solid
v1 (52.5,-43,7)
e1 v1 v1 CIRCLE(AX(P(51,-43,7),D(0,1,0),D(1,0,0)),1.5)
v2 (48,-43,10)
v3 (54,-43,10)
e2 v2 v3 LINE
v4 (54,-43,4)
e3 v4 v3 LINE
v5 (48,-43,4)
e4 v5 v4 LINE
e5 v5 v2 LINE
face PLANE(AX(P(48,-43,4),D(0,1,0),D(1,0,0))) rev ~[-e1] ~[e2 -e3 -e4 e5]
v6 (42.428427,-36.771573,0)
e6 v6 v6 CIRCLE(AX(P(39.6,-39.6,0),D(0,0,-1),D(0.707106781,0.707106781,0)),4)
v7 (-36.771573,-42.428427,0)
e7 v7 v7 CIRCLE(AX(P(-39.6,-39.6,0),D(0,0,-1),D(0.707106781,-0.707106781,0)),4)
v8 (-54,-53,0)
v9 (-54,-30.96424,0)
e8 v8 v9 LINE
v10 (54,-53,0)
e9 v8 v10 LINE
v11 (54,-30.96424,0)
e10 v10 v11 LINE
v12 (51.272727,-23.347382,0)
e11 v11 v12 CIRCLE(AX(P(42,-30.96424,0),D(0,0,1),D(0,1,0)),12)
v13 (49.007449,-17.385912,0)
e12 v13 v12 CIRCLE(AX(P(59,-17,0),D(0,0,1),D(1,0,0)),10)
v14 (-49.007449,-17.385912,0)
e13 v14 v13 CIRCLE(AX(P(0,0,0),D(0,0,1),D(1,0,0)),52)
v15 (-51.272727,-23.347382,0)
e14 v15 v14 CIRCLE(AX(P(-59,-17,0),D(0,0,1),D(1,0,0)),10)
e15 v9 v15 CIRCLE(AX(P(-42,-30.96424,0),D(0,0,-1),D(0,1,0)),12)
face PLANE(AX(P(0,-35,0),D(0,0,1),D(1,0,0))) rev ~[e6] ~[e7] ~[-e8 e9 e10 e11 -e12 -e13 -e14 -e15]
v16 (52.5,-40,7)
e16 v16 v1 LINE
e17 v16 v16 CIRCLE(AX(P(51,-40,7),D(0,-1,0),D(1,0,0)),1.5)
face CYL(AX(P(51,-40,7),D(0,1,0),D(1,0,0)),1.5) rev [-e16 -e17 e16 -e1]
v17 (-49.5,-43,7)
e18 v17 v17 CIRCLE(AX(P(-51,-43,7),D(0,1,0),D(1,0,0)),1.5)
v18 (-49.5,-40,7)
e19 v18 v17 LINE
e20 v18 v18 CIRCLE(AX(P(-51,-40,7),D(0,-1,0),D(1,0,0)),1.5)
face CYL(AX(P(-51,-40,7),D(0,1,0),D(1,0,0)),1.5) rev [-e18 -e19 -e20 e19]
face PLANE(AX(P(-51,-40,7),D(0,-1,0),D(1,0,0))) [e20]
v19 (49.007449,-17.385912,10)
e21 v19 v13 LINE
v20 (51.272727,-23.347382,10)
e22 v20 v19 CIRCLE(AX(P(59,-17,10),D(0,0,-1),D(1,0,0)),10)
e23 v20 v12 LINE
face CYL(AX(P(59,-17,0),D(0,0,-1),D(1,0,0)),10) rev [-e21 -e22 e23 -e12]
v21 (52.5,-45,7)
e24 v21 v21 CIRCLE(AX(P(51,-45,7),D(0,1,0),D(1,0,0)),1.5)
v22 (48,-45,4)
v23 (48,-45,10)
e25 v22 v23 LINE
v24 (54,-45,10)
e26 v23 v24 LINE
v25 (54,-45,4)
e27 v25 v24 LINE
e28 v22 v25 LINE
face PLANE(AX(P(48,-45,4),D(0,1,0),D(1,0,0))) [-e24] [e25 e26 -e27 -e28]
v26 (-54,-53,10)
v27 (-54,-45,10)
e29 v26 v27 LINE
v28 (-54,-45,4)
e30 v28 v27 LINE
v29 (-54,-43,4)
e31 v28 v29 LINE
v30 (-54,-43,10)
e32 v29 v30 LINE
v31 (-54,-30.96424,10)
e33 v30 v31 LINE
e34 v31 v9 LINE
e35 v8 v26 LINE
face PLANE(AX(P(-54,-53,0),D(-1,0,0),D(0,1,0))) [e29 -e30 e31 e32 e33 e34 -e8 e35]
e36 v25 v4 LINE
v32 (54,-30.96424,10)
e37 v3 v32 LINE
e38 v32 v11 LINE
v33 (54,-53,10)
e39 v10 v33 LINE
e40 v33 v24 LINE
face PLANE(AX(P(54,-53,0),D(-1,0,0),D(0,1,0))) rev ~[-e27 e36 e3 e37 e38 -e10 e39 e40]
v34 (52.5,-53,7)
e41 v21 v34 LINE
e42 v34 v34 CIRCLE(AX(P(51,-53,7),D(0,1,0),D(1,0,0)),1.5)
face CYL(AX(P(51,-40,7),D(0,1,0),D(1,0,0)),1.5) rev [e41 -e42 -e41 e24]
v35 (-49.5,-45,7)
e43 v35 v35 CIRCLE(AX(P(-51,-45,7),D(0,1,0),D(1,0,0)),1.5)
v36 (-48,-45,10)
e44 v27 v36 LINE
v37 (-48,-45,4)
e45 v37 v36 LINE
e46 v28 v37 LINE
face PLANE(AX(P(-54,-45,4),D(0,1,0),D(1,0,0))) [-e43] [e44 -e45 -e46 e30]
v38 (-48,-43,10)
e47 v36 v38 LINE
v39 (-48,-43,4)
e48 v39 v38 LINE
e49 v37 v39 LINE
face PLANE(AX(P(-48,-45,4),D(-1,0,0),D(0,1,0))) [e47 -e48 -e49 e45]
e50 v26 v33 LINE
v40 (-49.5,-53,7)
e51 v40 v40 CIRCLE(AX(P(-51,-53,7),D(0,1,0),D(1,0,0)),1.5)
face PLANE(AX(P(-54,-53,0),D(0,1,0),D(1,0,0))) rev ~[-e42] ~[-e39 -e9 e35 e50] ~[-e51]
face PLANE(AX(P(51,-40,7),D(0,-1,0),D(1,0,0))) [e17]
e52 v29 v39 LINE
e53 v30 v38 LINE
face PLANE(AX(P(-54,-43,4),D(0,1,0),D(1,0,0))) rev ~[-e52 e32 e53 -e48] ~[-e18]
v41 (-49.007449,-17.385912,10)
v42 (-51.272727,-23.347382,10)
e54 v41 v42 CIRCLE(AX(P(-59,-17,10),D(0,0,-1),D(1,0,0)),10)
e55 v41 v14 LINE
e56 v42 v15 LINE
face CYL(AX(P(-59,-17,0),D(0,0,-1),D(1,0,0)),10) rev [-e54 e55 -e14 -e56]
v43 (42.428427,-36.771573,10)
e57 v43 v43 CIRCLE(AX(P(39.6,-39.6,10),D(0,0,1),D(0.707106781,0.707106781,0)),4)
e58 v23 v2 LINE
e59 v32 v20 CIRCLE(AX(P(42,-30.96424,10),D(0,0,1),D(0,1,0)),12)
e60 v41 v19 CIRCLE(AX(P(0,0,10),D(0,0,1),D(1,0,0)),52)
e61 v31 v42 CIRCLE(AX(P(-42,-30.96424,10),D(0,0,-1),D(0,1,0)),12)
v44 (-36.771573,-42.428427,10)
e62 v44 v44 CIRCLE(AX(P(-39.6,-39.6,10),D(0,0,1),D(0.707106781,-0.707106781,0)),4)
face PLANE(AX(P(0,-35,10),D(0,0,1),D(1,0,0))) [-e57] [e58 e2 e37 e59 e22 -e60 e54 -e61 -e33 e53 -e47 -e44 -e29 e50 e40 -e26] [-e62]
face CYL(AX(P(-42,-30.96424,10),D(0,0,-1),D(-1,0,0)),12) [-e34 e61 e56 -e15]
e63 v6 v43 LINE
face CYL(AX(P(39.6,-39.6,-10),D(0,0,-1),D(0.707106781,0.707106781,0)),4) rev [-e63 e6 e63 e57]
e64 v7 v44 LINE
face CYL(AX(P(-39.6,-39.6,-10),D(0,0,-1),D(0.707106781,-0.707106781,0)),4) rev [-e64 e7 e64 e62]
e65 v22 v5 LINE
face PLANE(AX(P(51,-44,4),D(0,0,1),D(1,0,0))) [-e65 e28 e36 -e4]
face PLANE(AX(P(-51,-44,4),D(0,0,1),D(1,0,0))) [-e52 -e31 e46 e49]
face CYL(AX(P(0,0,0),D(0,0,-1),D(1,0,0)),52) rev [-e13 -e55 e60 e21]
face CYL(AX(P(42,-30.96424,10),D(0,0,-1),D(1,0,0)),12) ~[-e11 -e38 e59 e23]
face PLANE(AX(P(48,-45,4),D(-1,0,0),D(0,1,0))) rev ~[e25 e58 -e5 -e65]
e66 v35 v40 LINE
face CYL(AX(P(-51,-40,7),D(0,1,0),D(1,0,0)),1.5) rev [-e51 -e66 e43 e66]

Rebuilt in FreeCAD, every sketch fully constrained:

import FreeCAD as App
import Part
import Sketcher
from FreeCAD import Vector
Q = App.Units.Quantity


def edges_at(feature, points):
    """Names of the edges that pass closest to the given points."""
    edges = feature.Shape.Edges
    near = lambda p: min(range(len(edges)), key=lambda i: edges[i].distToShape(Part.Vertex(*p))[0])
    return sorted({f"Edge{near(p) + 1}" for p in points})

doc = App.newDocument("Part")
body = doc.addObject("PartDesign::Body", "Body")

sketch1 = body.newObject("Sketcher::SketchObject", "Sketch")
sketch1.AttachmentSupport = (doc.getObject("XZ_Plane"), [""])
sketch1.MapMode = "FlatFace"
sketch1.AttachmentOffset = App.Placement(Vector(0, 0, 40), App.Rotation())
sketch1.addGeometry(Part.Circle(Vector(20, -5, 0), Vector(0, 0, 1), 1.5), False)
sketch1.addConstraint([
    Sketcher.Constraint("Diameter", 0, Q("3 mm")),
    Sketcher.Constraint("DistanceX", -1, 1, 0, 3, Q("20 mm")),
    Sketcher.Constraint("DistanceY", 0, 3, -1, 1, Q("5 mm")),
])
pad1 = body.newObject("PartDesign::Pad", "Pad")
pad1.Profile = sketch1
pad1.Length = 20
body2 = doc.addObject("PartDesign::Body", "Body001")

sketch2 = body2.newObject("Sketcher::SketchObject", "Sketch001")
sketch2.AttachmentSupport = (doc.getObject("XZ_Plane001"), [""])
sketch2.MapMode = "FlatFace"
sketch2.AttachmentOffset = App.Placement(Vector(0, 0, 40), App.Rotation())
sketch2.addGeometry(Part.Circle(Vector(51, 7, 0), Vector(0, 0, 1), 1.5), False)
sketch2.addConstraint([
    Sketcher.Constraint("Diameter", 0, Q("3 mm")),
    Sketcher.Constraint("DistanceX", -1, 1, 0, 3, Q("51 mm")),
    Sketcher.Constraint("DistanceY", -1, 1, 0, 3, Q("7 mm")),
])
pad2 = body2.newObject("PartDesign::Pad", "Pad001")
pad2.Profile = sketch2
pad2.Length = 20
body3 = doc.addObject("PartDesign::Body", "Body002")

sketch3 = body3.newObject("Sketcher::SketchObject", "Sketch002")
sketch3.AttachmentSupport = (doc.getObject("XZ_Plane002"), [""])
sketch3.MapMode = "FlatFace"
sketch3.AttachmentOffset = App.Placement(Vector(0, 0, 40), App.Rotation())
sketch3.addGeometry(Part.Circle(Vector(-51, 7, 0), Vector(0, 0, 1), 1.5), False)
sketch3.addConstraint([
    Sketcher.Constraint("Diameter", 0, Q("3 mm")),
    Sketcher.Constraint("DistanceX", 0, 3, -1, 1, Q("51 mm")),
    Sketcher.Constraint("DistanceY", -1, 1, 0, 3, Q("7 mm")),
])
pad3 = body3.newObject("PartDesign::Pad", "Pad002")
pad3.Profile = sketch3
pad3.Length = 20
body4 = doc.addObject("PartDesign::Body", "Body003")
body4.AllowCompound = True

sketch4 = body4.newObject("Sketcher::SketchObject", "Sketch003")
sketch4.AttachmentSupport = (doc.getObject("XZ_Plane003"), [""])
sketch4.MapMode = "FlatFace"
sketch4.AttachmentOffset = App.Placement(Vector(0, 0, 40), App.Rotation())
sketch4.addGeometry(Part.Circle(Vector(-20, -5, 0), Vector(0, 0, 1), 1.5), False)
sketch4.addConstraint([
    Sketcher.Constraint("Diameter", 0, Q("3 mm")),
    Sketcher.Constraint("DistanceX", 0, 3, -1, 1, Q("20 mm")),
    Sketcher.Constraint("DistanceY", 0, 3, -1, 1, Q("5 mm")),
])
pad4 = body4.newObject("PartDesign::Pad", "Pad003")
pad4.Profile = sketch4
pad4.Length = 20
doc.recompute()

boolean = body4.newObject("PartDesign::Boolean", "Boolean")
boolean.Type = "Fuse"
boolean.addObjects([body])
doc.recompute()

boolean2 = body4.newObject("PartDesign::Boolean", "Boolean001")
boolean2.Type = "Fuse"
boolean2.addObjects([body2])
doc.recompute()

boolean3 = body4.newObject("PartDesign::Boolean", "Boolean002")
boolean3.Type = "Fuse"
boolean3.addObjects([body3])
body5 = doc.addObject("PartDesign::Body", "Body004")

sketch5 = body5.newObject("Sketcher::SketchObject", "Sketch004")
sketch5.AttachmentSupport = (doc.getObject("XY_Plane004"), [""])
sketch5.MapMode = "FlatFace"
sketch5.AttachmentOffset = App.Placement(Vector(0, 0, -8), App.Rotation())
sketch5.addGeometry([
    Part.LineSegment(Vector(17, -45, 0), Vector(17, -47, 0)),
    Part.LineSegment(Vector(17, -47, 0), Vector(23, -47, 0)),
    Part.LineSegment(Vector(23, -47, 0), Vector(23, -45, 0)),
    Part.LineSegment(Vector(23, -45, 0), Vector(17, -45, 0)),
], False)
sketch5.addConstraint([
    Sketcher.Constraint("Coincident", 0, 2, 1, 1),
    Sketcher.Constraint("Coincident", 1, 2, 2, 1),
    Sketcher.Constraint("Coincident", 2, 2, 3, 1),
    Sketcher.Constraint("Coincident", 3, 2, 0, 1),
    Sketcher.Constraint("Vertical", 0),
    Sketcher.Constraint("Horizontal", 1),
    Sketcher.Constraint("Vertical", 2),
    Sketcher.Constraint("Horizontal", 3),
    Sketcher.Constraint("DistanceX", 1, 1, 1, 2, Q("6 mm")),
    Sketcher.Constraint("DistanceY", 0, 2, 0, 1, Q("2 mm")),
    Sketcher.Constraint("DistanceX", -1, 1, 0, 2, Q("17 mm")),
    Sketcher.Constraint("DistanceY", 0, 2, -1, 1, Q("47 mm")),
])
pad5 = body5.newObject("PartDesign::Pad", "Pad004")
pad5.Profile = sketch5
pad5.Length = 6
body6 = doc.addObject("PartDesign::Body", "Body005")

sketch6 = body6.newObject("Sketcher::SketchObject", "Sketch005")
sketch6.AttachmentSupport = (doc.getObject("XY_Plane005"), [""])
sketch6.MapMode = "FlatFace"
sketch6.AttachmentOffset = App.Placement(Vector(0, 0, 4), App.Rotation())
sketch6.addGeometry([
    Part.LineSegment(Vector(48, -43, 0), Vector(48, -45, 0)),
    Part.LineSegment(Vector(48, -45, 0), Vector(54, -45, 0)),
    Part.LineSegment(Vector(54, -45, 0), Vector(54, -43, 0)),
    Part.LineSegment(Vector(54, -43, 0), Vector(48, -43, 0)),
], False)
sketch6.addConstraint([
    Sketcher.Constraint("Coincident", 0, 2, 1, 1),
    Sketcher.Constraint("Coincident", 1, 2, 2, 1),
    Sketcher.Constraint("Coincident", 2, 2, 3, 1),
    Sketcher.Constraint("Coincident", 3, 2, 0, 1),
    Sketcher.Constraint("Vertical", 0),
    Sketcher.Constraint("Horizontal", 1),
    Sketcher.Constraint("Vertical", 2),
    Sketcher.Constraint("Horizontal", 3),
    Sketcher.Constraint("DistanceX", 1, 1, 1, 2, Q("6 mm")),
    Sketcher.Constraint("DistanceY", 0, 2, 0, 1, Q("2 mm")),
    Sketcher.Constraint("DistanceX", -1, 1, 0, 2, Q("48 mm")),
    Sketcher.Constraint("DistanceY", 0, 2, -1, 1, Q("45 mm")),
])
pad6 = body6.newObject("PartDesign::Pad", "Pad005")
pad6.Profile = sketch6
pad6.Length = 6
body7 = doc.addObject("PartDesign::Body", "Body006")

sketch7 = body7.newObject("Sketcher::SketchObject", "Sketch006")
sketch7.AttachmentSupport = (doc.getObject("XY_Plane006"), [""])
sketch7.MapMode = "FlatFace"
sketch7.AttachmentOffset = App.Placement(Vector(0, 0, 4), App.Rotation())
sketch7.addGeometry([
    Part.LineSegment(Vector(-54, -43, 0), Vector(-54, -45, 0)),
    Part.LineSegment(Vector(-54, -45, 0), Vector(-48, -45, 0)),
    Part.LineSegment(Vector(-48, -45, 0), Vector(-48, -43, 0)),
    Part.LineSegment(Vector(-48, -43, 0), Vector(-54, -43, 0)),
], False)
sketch7.addConstraint([
    Sketcher.Constraint("Coincident", 0, 2, 1, 1),
    Sketcher.Constraint("Coincident", 1, 2, 2, 1),
    Sketcher.Constraint("Coincident", 2, 2, 3, 1),
    Sketcher.Constraint("Coincident", 3, 2, 0, 1),
    Sketcher.Constraint("Vertical", 0),
    Sketcher.Constraint("Horizontal", 1),
    Sketcher.Constraint("Vertical", 2),
    Sketcher.Constraint("Horizontal", 3),
    Sketcher.Constraint("DistanceX", 1, 1, 1, 2, Q("6 mm")),
    Sketcher.Constraint("DistanceY", 0, 2, 0, 1, Q("2 mm")),
    Sketcher.Constraint("DistanceX", 0, 2, -1, 1, Q("54 mm")),
    Sketcher.Constraint("DistanceY", 0, 2, -1, 1, Q("45 mm")),
])
pad7 = body7.newObject("PartDesign::Pad", "Pad006")
pad7.Profile = sketch7
pad7.Length = 6
body8 = doc.addObject("PartDesign::Body", "Body007")
body8.AllowCompound = True

sketch8 = body8.newObject("Sketcher::SketchObject", "Sketch007")
sketch8.AttachmentSupport = (doc.getObject("XY_Plane007"), [""])
sketch8.MapMode = "FlatFace"
sketch8.AttachmentOffset = App.Placement(Vector(0, 0, -8), App.Rotation())
sketch8.addGeometry([
    Part.LineSegment(Vector(-23, -45, 0), Vector(-23, -47, 0)),
    Part.LineSegment(Vector(-23, -47, 0), Vector(-17, -47, 0)),
    Part.LineSegment(Vector(-17, -47, 0), Vector(-17, -45, 0)),
    Part.LineSegment(Vector(-17, -45, 0), Vector(-23, -45, 0)),
], False)
sketch8.addConstraint([
    Sketcher.Constraint("Coincident", 0, 2, 1, 1),
    Sketcher.Constraint("Coincident", 1, 2, 2, 1),
    Sketcher.Constraint("Coincident", 2, 2, 3, 1),
    Sketcher.Constraint("Coincident", 3, 2, 0, 1),
    Sketcher.Constraint("Vertical", 0),
    Sketcher.Constraint("Horizontal", 1),
    Sketcher.Constraint("Vertical", 2),
    Sketcher.Constraint("Horizontal", 3),
    Sketcher.Constraint("DistanceX", 1, 1, 1, 2, Q("6 mm")),
    Sketcher.Constraint("DistanceY", 0, 2, 0, 1, Q("2 mm")),
    Sketcher.Constraint("DistanceX", 0, 2, -1, 1, Q("23 mm")),
    Sketcher.Constraint("DistanceY", 0, 2, -1, 1, Q("47 mm")),
])
pad8 = body8.newObject("PartDesign::Pad", "Pad007")
pad8.Profile = sketch8
pad8.Length = 6
doc.recompute()

boolean4 = body8.newObject("PartDesign::Boolean", "Boolean003")
boolean4.Type = "Fuse"
boolean4.addObjects([body5])
doc.recompute()

boolean5 = body8.newObject("PartDesign::Boolean", "Boolean004")
boolean5.Type = "Fuse"
boolean5.addObjects([body6])
doc.recompute()

boolean6 = body8.newObject("PartDesign::Boolean", "Boolean005")
boolean6.Type = "Fuse"
boolean6.addObjects([body7])
body9 = doc.addObject("PartDesign::Body", "Body008")

sketch9 = body9.newObject("Sketcher::SketchObject", "Sketch008")
sketch9.AttachmentSupport = (doc.getObject("XY_Plane008"), [""])
sketch9.MapMode = "FlatFace"
sketch9.addGeometry(Part.Circle(Vector(0, 0, 0), Vector(0, 0, 1), 4), False)
sketch9.addConstraint([
    Sketcher.Constraint("Coincident", 0, 3, -1, 1),
    Sketcher.Constraint("Diameter", 0, Q("8 mm")),
])
pad9 = body9.newObject("PartDesign::Pad", "Pad008")
pad9.Profile = sketch9
pad9.Length = 20
body10 = doc.addObject("PartDesign::Body", "Body009")
doc.recompute()

body9.Placement = App.Placement(Vector(39.6, -39.6, -10), App.Rotation(Vector(0, 0, 1), 45))
boolean7 = body10.newObject("PartDesign::Boolean", "Boolean006")
boolean7.Type = "Fuse"
boolean7.addObjects([body9])
body11 = doc.addObject("PartDesign::Body", "Body010")

sketch10 = body11.newObject("Sketcher::SketchObject", "Sketch009")
sketch10.AttachmentSupport = (doc.getObject("XY_Plane010"), [""])
sketch10.MapMode = "FlatFace"
sketch10.addGeometry(Part.Circle(Vector(0, 0, 0), Vector(0, 0, 1), 4), False)
sketch10.addConstraint([
    Sketcher.Constraint("Coincident", 0, 3, -1, 1),
    Sketcher.Constraint("Diameter", 0, Q("8 mm")),
])
pad10 = body11.newObject("PartDesign::Pad", "Pad009")
pad10.Profile = sketch10
pad10.Length = 20
body12 = doc.addObject("PartDesign::Body", "Body011")
body12.AllowCompound = True
doc.recompute()

body11.Placement = App.Placement(Vector(-39.6, -39.6, -10), App.Rotation(Vector(0, 0, -1), 45))
boolean8 = body12.newObject("PartDesign::Boolean", "Boolean007")
boolean8.Type = "Fuse"
boolean8.addObjects([body11])
doc.recompute()

boolean9 = body12.newObject("PartDesign::Boolean", "Boolean008")
boolean9.Type = "Fuse"
boolean9.addObjects([body10])
body13 = doc.addObject("PartDesign::Body", "Body012")

sketch11 = body13.newObject("Sketcher::SketchObject", "Sketch010")
sketch11.AttachmentSupport = (doc.getObject("XY_Plane012"), [""])
sketch11.MapMode = "FlatFace"
sketch11.addGeometry(Part.Circle(Vector(-59, -17, 0), Vector(0, 0, 1), 10), False)
sketch11.addConstraint([
    Sketcher.Constraint("Diameter", 0, Q("20 mm")),
    Sketcher.Constraint("DistanceX", 0, 3, -1, 1, Q("59 mm")),
    Sketcher.Constraint("DistanceY", 0, 3, -1, 1, Q("17 mm")),
])
pad11 = body13.newObject("PartDesign::Pad", "Pad010")
pad11.Profile = sketch11
pad11.Length = 40
body14 = doc.addObject("PartDesign::Body", "Body013")
body14.AllowCompound = True

sketch12 = body14.newObject("Sketcher::SketchObject", "Sketch011")
sketch12.AttachmentSupport = (doc.getObject("XY_Plane013"), [""])
sketch12.MapMode = "FlatFace"
sketch12.addGeometry(Part.Circle(Vector(59, -17, 0), Vector(0, 0, 1), 10), False)
sketch12.addConstraint([
    Sketcher.Constraint("Diameter", 0, Q("20 mm")),
    Sketcher.Constraint("DistanceX", -1, 1, 0, 3, Q("59 mm")),
    Sketcher.Constraint("DistanceY", 0, 3, -1, 1, Q("17 mm")),
])
pad12 = body14.newObject("PartDesign::Pad", "Pad011")
pad12.Profile = sketch12
pad12.Length = 40
doc.recompute()

boolean10 = body14.newObject("PartDesign::Boolean", "Boolean009")
boolean10.Type = "Fuse"
boolean10.addObjects([body13])
body15 = doc.addObject("PartDesign::Body", "Body014")

sketch13 = body15.newObject("Sketcher::SketchObject", "Sketch012")
sketch13.AttachmentSupport = (doc.getObject("XY_Plane014"), [""])
sketch13.MapMode = "FlatFace"
sketch13.AttachmentOffset = App.Placement(Vector(0, 0, 20), App.Rotation())
sketch13.addGeometry(Part.Circle(Vector(0, 0, 0), Vector(0, 0, 1), 52), False)
sketch13.addConstraint([
    Sketcher.Constraint("Coincident", 0, 3, -1, 1),
    Sketcher.Constraint("Diameter", 0, Q("104 mm")),
])
pad13 = body15.newObject("PartDesign::Pad", "Pad012")
pad13.Profile = sketch13
pad13.Length = 10
body16 = doc.addObject("PartDesign::Body", "Body015")

sketch14 = body16.newObject("Sketcher::SketchObject", "Sketch013")
sketch14.AttachmentSupport = (doc.getObject("XY_Plane015"), [""])
sketch14.MapMode = "FlatFace"
sketch14.AttachmentOffset = App.Placement(Vector(0, 0, 20), App.Rotation())
sketch14.addGeometry([
    Part.LineSegment(Vector(-54, -17, 0), Vector(-54, -53, 0)),
    Part.LineSegment(Vector(-54, -53, 0), Vector(54, -53, 0)),
    Part.LineSegment(Vector(54, -53, 0), Vector(54, -17, 0)),
    Part.LineSegment(Vector(54, -17, 0), Vector(-54, -17, 0)),
], False)
sketch14.addConstraint([
    Sketcher.Constraint("Coincident", 0, 2, 1, 1),
    Sketcher.Constraint("Coincident", 1, 2, 2, 1),
    Sketcher.Constraint("Coincident", 2, 2, 3, 1),
    Sketcher.Constraint("Coincident", 3, 2, 0, 1),
    Sketcher.Constraint("Vertical", 0),
    Sketcher.Constraint("Horizontal", 1),
    Sketcher.Constraint("Vertical", 2),
    Sketcher.Constraint("Horizontal", 3),
    Sketcher.Constraint("DistanceX", 1, 1, 1, 2, Q("108 mm")),
    Sketcher.Constraint("DistanceY", 0, 2, 0, 1, Q("36 mm")),
    Sketcher.Constraint("DistanceX", 0, 2, -1, 1, Q("54 mm")),
    Sketcher.Constraint("DistanceY", 0, 2, -1, 1, Q("53 mm")),
])
pad14 = body16.newObject("PartDesign::Pad", "Pad013")
pad14.Profile = sketch14
pad14.Length = 10
doc.recompute()

boolean11 = body16.newObject("PartDesign::Boolean", "Boolean010")
boolean11.Type = "Cut"
boolean11.addObjects([body15])
body17 = doc.addObject("PartDesign::Body", "Body016")
doc.recompute()

body16.Placement = App.Placement(Vector(0, 0, -20), App.Rotation(Vector(0, 0, 1), 0))
boolean12 = body17.newObject("PartDesign::Boolean", "Boolean011")
boolean12.Type = "Fuse"
boolean12.addObjects([body16])
doc.recompute()

boolean13 = body17.newObject("PartDesign::Boolean", "Boolean012")
boolean13.Type = "Cut"
boolean13.addObjects([body14])
doc.recompute()

boolean14 = body17.newObject("PartDesign::Boolean", "Boolean013")
boolean14.Type = "Cut"
boolean14.addObjects([body12])
doc.recompute()

boolean15 = body17.newObject("PartDesign::Boolean", "Boolean014")
boolean15.Type = "Cut"
boolean15.addObjects([body8])
doc.recompute()

boolean16 = body17.newObject("PartDesign::Boolean", "Boolean015")
boolean16.Type = "Cut"
boolean16.addObjects([body4])
doc.recompute()

fillet = body17.newObject("PartDesign::Fillet", "Fillet")
fillet.Base = (boolean16, edges_at(boolean16, [(-54, -25.66, 5), (54, -25.66, 5)]))
fillet.Radius = 12

doc.recompute()
